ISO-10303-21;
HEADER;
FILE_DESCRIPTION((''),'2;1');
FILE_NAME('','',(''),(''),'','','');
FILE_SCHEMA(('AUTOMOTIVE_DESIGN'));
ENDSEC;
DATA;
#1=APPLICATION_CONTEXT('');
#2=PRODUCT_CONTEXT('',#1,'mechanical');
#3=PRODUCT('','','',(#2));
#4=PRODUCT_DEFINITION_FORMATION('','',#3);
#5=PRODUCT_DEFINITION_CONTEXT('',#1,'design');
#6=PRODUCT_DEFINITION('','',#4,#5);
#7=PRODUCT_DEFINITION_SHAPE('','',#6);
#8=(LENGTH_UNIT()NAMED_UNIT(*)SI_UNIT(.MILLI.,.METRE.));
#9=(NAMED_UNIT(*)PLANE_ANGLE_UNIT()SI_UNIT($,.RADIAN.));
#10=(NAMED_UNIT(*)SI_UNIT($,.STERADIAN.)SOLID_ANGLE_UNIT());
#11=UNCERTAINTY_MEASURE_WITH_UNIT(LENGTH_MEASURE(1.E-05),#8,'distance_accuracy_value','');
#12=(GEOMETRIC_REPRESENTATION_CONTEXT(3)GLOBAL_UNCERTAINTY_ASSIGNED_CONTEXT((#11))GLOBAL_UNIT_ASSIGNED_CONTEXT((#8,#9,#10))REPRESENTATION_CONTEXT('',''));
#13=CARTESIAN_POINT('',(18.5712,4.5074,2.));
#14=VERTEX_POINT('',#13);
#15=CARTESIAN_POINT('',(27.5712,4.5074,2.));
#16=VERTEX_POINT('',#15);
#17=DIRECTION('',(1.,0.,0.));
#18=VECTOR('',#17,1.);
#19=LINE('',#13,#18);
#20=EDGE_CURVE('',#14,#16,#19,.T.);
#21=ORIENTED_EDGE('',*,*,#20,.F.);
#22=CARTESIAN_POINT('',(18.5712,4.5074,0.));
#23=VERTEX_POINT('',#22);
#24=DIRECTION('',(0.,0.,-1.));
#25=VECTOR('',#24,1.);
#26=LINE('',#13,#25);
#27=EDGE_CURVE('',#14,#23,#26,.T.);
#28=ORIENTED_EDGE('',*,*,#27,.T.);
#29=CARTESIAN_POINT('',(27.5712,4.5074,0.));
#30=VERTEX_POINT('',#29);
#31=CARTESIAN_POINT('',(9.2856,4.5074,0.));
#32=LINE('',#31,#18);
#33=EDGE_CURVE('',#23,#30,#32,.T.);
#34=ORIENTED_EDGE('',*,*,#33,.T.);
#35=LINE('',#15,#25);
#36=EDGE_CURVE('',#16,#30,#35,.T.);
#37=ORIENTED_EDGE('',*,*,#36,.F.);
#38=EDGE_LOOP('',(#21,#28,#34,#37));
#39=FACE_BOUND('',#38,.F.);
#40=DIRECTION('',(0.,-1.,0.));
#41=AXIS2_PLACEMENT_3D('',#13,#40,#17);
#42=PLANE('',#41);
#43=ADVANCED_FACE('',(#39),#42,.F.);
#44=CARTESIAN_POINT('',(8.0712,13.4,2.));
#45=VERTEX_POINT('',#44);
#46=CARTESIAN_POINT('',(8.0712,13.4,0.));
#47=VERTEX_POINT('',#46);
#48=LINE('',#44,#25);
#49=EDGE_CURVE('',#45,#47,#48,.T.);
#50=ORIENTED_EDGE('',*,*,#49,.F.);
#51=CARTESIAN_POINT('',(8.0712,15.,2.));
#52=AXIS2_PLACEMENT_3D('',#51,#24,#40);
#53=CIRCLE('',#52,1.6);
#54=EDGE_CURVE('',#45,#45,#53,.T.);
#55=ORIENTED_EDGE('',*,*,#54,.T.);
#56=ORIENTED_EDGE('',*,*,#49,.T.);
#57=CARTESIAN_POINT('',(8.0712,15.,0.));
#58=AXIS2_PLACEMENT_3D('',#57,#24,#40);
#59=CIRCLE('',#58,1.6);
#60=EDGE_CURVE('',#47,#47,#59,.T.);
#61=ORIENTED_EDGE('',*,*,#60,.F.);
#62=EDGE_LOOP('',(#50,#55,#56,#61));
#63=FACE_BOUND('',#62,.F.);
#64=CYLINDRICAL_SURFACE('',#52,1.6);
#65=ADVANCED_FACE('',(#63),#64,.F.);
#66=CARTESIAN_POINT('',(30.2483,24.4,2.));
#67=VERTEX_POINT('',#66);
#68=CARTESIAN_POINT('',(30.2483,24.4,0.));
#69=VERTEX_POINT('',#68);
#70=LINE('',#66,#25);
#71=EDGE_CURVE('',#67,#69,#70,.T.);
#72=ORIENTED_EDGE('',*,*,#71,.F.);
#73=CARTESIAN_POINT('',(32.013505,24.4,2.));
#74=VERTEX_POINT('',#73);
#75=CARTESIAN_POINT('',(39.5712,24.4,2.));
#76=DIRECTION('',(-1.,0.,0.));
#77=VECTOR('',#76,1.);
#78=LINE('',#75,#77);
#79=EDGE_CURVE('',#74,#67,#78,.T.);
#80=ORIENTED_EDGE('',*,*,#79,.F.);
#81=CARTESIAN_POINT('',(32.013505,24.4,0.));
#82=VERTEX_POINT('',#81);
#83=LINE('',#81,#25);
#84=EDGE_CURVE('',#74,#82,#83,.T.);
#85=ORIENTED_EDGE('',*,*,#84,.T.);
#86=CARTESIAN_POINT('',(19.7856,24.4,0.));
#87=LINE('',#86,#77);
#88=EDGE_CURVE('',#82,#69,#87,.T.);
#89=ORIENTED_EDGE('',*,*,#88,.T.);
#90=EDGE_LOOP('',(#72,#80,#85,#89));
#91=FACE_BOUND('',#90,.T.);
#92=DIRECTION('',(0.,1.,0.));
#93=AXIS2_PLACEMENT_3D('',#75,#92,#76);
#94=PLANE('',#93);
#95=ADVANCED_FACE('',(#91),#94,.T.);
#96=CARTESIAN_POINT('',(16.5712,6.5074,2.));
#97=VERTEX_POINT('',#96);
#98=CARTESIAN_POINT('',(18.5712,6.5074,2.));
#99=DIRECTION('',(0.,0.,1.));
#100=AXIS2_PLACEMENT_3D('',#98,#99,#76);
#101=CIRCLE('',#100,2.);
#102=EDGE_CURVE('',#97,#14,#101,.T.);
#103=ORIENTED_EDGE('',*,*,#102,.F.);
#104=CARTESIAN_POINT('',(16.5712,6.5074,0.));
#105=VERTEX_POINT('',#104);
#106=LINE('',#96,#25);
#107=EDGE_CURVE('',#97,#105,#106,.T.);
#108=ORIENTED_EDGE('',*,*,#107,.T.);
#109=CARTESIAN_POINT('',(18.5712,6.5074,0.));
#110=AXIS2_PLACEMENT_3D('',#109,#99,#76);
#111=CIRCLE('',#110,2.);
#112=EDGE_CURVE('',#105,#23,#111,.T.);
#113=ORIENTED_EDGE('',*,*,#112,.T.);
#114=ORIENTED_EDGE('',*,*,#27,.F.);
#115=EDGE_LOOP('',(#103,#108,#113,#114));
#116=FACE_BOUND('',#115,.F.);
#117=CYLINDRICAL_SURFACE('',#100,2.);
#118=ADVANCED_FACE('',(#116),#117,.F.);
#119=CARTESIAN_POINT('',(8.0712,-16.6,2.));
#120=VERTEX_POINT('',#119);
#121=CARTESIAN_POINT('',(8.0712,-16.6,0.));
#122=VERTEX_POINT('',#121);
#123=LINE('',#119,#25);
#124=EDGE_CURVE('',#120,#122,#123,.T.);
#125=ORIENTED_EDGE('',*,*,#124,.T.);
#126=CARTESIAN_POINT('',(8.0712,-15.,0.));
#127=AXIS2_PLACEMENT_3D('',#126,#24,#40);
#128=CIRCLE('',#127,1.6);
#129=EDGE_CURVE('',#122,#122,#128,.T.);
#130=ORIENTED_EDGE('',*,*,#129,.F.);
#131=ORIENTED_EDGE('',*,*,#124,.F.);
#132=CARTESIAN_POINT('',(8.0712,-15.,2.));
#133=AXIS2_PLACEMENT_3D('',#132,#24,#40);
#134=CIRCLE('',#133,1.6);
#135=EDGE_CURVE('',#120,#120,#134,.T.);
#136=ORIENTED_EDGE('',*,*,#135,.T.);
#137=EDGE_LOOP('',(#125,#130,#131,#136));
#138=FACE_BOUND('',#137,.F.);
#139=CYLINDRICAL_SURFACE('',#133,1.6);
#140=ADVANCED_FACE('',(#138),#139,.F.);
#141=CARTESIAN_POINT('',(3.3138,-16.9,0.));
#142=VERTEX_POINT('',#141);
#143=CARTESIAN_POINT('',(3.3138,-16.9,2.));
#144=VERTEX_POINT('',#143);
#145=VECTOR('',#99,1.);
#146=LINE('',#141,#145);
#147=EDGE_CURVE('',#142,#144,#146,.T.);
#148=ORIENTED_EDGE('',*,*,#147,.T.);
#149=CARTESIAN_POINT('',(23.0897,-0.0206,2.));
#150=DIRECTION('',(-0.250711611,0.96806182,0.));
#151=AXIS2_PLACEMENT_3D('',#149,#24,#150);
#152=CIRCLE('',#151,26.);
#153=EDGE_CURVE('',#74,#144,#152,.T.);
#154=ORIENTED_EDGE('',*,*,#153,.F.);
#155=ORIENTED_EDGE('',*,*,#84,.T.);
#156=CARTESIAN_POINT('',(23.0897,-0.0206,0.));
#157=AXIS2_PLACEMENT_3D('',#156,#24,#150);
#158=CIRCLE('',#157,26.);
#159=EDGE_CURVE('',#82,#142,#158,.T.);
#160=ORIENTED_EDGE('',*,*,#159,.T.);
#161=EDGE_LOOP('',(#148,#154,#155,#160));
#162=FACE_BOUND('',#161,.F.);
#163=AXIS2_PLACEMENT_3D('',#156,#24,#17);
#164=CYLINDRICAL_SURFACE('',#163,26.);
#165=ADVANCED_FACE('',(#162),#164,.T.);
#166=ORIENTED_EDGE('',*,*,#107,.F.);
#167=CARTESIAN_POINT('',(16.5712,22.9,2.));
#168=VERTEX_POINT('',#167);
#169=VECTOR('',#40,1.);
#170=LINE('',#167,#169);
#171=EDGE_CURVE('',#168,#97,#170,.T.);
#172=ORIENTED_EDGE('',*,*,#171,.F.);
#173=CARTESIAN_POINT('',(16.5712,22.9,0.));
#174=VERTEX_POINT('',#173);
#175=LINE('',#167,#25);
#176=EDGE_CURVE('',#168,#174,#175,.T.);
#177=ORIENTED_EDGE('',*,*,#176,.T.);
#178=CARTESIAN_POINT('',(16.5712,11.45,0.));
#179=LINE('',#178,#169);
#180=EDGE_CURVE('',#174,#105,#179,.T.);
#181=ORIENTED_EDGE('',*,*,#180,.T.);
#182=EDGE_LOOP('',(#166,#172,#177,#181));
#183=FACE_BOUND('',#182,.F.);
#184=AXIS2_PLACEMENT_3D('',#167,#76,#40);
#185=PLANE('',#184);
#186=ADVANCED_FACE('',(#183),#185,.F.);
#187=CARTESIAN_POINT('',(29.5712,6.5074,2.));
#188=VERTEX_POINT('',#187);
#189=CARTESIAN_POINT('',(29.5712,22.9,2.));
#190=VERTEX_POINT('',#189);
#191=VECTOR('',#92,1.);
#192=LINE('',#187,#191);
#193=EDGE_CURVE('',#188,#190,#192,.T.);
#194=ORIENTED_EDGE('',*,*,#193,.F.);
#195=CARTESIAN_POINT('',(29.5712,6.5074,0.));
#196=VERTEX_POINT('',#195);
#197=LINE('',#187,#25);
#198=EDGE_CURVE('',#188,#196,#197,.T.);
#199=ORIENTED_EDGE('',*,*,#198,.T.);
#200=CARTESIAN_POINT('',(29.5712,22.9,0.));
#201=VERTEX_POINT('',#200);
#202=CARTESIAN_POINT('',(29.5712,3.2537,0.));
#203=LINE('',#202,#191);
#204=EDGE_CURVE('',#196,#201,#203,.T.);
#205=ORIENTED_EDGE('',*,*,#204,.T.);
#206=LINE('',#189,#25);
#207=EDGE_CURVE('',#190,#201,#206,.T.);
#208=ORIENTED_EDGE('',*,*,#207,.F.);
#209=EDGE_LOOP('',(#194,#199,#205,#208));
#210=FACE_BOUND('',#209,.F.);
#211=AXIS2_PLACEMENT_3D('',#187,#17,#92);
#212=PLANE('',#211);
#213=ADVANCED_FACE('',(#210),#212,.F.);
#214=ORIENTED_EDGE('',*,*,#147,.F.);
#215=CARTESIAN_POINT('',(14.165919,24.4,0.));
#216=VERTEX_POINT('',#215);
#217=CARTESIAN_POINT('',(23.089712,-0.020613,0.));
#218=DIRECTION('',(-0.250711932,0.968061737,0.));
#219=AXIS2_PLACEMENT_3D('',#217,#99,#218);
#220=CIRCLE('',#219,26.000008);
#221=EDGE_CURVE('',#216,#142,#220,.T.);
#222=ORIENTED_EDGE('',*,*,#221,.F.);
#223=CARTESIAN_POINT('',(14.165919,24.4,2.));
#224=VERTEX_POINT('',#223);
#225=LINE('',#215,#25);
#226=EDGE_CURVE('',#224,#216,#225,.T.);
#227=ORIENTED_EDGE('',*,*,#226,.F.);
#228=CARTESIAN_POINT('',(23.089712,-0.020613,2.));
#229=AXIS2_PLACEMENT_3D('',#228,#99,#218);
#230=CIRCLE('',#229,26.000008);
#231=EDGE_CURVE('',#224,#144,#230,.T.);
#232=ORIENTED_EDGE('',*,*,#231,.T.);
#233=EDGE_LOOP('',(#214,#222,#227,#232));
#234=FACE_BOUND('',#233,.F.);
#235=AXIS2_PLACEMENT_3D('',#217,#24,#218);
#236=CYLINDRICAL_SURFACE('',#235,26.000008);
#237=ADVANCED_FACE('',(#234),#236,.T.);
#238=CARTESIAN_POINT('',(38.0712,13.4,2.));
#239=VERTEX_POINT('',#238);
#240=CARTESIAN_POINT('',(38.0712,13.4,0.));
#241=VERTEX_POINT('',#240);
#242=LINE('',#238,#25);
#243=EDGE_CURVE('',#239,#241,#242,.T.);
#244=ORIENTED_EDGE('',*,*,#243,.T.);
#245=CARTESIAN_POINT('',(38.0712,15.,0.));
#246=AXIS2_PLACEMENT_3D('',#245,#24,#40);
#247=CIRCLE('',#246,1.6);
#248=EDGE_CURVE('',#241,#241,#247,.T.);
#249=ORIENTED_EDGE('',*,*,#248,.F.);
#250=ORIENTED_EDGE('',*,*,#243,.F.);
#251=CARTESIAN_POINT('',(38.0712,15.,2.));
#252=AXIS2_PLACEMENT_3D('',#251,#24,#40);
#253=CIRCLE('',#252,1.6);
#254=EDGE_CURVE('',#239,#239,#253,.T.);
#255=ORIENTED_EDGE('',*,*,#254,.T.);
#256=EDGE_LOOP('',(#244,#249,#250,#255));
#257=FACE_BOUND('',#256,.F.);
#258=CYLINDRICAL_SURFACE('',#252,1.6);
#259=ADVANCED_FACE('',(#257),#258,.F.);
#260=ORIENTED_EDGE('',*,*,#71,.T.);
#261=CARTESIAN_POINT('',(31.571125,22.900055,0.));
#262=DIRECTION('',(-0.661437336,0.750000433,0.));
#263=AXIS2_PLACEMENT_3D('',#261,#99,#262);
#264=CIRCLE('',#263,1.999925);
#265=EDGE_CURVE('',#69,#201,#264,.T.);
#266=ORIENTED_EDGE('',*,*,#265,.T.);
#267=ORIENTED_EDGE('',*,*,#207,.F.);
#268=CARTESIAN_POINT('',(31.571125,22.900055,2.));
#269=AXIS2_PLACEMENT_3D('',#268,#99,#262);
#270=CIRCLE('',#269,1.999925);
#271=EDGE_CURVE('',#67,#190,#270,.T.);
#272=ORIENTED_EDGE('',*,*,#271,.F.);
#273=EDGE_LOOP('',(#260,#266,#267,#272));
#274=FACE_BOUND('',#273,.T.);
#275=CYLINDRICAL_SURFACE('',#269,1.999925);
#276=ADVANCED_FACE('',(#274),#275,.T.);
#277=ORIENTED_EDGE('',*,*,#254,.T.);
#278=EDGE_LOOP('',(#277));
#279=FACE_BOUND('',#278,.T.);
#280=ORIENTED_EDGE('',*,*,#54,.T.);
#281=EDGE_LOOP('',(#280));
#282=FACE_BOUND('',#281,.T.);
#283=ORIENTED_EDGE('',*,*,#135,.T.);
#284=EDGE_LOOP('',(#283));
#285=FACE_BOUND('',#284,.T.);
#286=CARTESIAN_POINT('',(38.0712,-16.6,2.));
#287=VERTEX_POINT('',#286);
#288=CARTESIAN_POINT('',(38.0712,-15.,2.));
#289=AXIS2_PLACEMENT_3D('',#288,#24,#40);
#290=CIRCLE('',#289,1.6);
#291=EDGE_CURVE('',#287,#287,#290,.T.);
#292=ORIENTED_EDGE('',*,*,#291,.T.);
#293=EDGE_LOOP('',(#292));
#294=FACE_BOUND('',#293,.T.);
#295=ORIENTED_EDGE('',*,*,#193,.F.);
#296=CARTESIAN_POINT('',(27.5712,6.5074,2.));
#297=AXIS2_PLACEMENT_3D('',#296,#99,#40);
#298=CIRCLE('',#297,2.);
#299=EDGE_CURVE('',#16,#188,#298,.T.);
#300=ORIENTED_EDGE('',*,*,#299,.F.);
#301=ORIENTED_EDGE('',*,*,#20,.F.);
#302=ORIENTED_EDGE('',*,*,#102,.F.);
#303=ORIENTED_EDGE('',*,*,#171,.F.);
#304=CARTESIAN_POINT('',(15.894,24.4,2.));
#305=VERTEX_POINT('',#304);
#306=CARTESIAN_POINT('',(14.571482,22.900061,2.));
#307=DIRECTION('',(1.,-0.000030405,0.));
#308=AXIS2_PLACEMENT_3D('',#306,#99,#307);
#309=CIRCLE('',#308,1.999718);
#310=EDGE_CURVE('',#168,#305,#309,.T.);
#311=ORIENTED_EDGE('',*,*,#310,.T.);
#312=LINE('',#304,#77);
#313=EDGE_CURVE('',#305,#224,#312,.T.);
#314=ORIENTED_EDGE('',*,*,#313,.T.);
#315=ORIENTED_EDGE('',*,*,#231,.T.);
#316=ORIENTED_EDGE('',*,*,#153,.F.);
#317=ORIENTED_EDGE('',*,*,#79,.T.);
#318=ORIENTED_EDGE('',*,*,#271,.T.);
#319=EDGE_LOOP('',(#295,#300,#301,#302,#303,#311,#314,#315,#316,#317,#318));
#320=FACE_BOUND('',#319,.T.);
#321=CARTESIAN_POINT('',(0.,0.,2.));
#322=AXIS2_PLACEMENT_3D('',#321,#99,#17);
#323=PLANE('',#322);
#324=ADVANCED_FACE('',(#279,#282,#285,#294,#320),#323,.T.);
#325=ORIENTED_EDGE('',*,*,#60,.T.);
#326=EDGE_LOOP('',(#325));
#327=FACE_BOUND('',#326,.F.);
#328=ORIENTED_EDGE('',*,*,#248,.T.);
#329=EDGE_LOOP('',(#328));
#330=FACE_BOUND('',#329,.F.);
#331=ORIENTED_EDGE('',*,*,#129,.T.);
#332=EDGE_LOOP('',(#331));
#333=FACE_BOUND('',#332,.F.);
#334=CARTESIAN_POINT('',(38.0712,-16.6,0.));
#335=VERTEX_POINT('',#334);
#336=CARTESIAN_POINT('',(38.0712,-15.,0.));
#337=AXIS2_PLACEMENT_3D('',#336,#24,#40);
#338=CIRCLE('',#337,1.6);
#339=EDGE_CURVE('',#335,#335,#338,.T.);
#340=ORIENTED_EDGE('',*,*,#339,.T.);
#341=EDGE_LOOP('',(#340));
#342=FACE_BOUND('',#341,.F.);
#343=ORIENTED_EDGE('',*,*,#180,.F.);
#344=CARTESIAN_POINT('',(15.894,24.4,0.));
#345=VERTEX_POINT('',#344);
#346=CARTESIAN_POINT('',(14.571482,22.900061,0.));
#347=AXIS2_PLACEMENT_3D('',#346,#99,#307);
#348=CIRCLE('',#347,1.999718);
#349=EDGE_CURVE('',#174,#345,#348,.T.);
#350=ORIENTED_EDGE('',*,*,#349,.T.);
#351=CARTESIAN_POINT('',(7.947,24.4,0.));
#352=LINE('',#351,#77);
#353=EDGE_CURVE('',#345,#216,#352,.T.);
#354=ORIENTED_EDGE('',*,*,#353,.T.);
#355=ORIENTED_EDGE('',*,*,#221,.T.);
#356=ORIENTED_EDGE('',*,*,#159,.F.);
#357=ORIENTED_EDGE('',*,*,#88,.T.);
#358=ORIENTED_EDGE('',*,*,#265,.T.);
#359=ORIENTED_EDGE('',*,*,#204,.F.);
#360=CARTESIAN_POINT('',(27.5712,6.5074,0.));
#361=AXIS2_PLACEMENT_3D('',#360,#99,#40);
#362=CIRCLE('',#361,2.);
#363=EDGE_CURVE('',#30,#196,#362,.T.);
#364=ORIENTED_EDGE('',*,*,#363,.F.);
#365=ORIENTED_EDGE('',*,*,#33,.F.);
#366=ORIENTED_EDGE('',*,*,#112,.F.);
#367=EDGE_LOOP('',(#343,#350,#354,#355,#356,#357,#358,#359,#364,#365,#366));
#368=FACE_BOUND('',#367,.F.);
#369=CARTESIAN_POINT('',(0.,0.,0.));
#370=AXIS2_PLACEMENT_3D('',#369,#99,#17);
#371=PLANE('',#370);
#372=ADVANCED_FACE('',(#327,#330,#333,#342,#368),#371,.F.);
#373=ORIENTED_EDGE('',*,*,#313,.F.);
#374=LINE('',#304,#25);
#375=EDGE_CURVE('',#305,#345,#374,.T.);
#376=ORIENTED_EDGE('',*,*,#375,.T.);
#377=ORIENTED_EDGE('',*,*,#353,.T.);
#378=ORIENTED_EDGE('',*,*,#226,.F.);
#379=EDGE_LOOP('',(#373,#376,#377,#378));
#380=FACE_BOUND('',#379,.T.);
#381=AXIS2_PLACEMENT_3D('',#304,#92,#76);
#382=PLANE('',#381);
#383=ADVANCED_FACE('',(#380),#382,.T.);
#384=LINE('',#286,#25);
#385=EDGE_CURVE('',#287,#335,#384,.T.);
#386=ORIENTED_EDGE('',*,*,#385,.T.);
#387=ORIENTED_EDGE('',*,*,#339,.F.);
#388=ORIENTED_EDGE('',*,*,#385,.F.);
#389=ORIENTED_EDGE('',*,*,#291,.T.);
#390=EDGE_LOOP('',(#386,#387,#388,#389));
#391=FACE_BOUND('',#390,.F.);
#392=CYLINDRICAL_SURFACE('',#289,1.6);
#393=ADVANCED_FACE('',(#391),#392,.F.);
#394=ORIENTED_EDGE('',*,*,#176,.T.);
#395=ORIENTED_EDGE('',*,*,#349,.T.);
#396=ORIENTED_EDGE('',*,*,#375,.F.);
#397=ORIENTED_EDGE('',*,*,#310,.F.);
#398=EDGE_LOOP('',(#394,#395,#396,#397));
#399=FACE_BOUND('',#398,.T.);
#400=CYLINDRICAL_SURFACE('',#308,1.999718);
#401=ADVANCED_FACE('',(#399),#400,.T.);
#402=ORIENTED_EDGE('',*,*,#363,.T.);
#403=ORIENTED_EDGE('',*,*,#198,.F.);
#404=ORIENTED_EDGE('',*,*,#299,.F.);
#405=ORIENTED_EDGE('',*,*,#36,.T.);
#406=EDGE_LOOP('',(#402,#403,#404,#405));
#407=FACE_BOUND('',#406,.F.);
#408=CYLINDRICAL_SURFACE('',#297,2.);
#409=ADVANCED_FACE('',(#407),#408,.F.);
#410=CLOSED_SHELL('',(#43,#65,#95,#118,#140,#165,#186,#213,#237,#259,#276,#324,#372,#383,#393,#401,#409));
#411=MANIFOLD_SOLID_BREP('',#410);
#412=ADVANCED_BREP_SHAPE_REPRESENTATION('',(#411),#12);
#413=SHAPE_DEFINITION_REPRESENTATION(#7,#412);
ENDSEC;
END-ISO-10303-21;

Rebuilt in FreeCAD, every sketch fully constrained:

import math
import FreeCAD as App
import Part
import Sketcher
from FreeCAD import Vector

doc = App.newDocument("Part")
body = doc.addObject("PartDesign::Body", "Body")

sketch1 = doc.addObject("Sketcher::SketchObject", "Sketch")
body.addObject(sketch1)
sketch1.AttachmentSupport = (doc.XY_Plane, [""])
sketch1.MapMode = "FlatFace"
sketch1.addGeometry([
    Part.ArcOfCircle(Part.Circle(Vector(23, 0, 0), Vector(0, 0, 1), 26), math.radians(-140), math.radians(105)),
    Part.ArcOfCircle(Part.Circle(Vector(23, 0, 0), Vector(0, 0, 1), 26), math.radians(105), math.radians(220)),
], False)
sketch1.addConstraint([
    Sketcher.Constraint("Tangent", 0, 1, 1, 2),
    Sketcher.Constraint("Coincident", 1, 1, 0, 2),
    Sketcher.Constraint("Radius", 0, 26.0),
    Sketcher.Constraint("DistanceY", 0, 1, -1, 1, 16.9),
    Sketcher.Constraint("DistanceY", -1, 1, 1, 1, 25.149),
    Sketcher.Constraint("DistanceX", 0, 1, 0, 3, 19.776),
    Sketcher.Constraint("DistanceX", -1, 1, 0, 3, 23.0897),
])
pad1 = doc.addObject("PartDesign::Pad", "Pad")
body.addObject(pad1)
pad1.Profile = sketch1
pad1.Length = 2

sketch2 = doc.addObject("Sketcher::SketchObject", "Sketch001")
body.addObject(sketch2)
sketch2.AttachmentSupport = (doc.XY_Plane, [""])
sketch2.MapMode = "FlatFace"
sketch2.AttachmentOffset = App.Placement(Vector(0, 0, 2), App.Rotation())
sketch2.addGeometry([
    Part.Circle(Vector(8.1, 15, 0), Vector(0, 0, 1), 1.6),
    Part.Circle(Vector(8.1, -15, 0), Vector(0, 0, 1), 1.6),
    Part.Circle(Vector(38.1, -15, 0), Vector(0, 0, 1), 1.6),
    Part.Circle(Vector(38.1, 15, 0), Vector(0, 0, 1), 1.6),
], False)
sketch2.addConstraint([
    Sketcher.Constraint("Equal", 0, 1),
    Sketcher.Constraint("Equal", 1, 2),
    Sketcher.Constraint("Equal", 2, 3),
    Sketcher.Constraint("Symmetric", 0, 3, 1, 3, -1),
    Sketcher.Constraint("Symmetric", 2, 3, 3, 3, -1),
    Sketcher.Constraint("Horizontal", 1, 3, 2, 3),
    Sketcher.Constraint("Diameter", 0, 3.2),
    Sketcher.Constraint("DistanceY", -1, 1, 0, 3, 15.0),
    Sketcher.Constraint("DistanceX", 1, 3, 2, 3, 30.0),
    Sketcher.Constraint("DistanceX", -1, 1, 0, 3, 8.0712),
])
doc.recompute()
hole = doc.addObject("PartDesign::Hole", "Hole")
body.addObject(hole)
hole.Profile = sketch2
hole.ThreadType = "None"
hole.Diameter = 3.2
hole.DepthType = "ThroughAll"

sketch3 = doc.addObject("Sketcher::SketchObject", "Sketch002")
body.addObject(sketch3)
sketch3.AttachmentSupport = (doc.XY_Plane, [""])
sketch3.MapMode = "FlatFace"
sketch3.AttachmentOffset = App.Placement(Vector(0, 0, 2), App.Rotation())
sketch3.addGeometry([
    Part.LineSegment(Vector(6.6, 24.4, 0), Vector(15.9, 24.4, 0)),
    Part.ArcOfCircle(Part.Circle(Vector(14.6, 22.9, 0), Vector(0, 0, 1), 2), math.radians(0), math.radians(49)),
    Part.LineSegment(Vector(16.6, 22.9, 0), Vector(16.6, 6.5, 0)),
    Part.ArcOfCircle(Part.Circle(Vector(18.6, 6.5, 0), Vector(0, 0, 1), 2), math.radians(180), math.radians(270)),
    Part.LineSegment(Vector(18.6, 4.5, 0), Vector(27.6, 4.5, 0)),
    Part.ArcOfCircle(Part.Circle(Vector(27.6, 6.5, 0), Vector(0, 0, 1), 2), math.radians(-90), math.radians(0)),
    Part.LineSegment(Vector(29.6, 6.5, 0), Vector(29.6, 22.9, 0)),
    Part.ArcOfCircle(Part.Circle(Vector(31.6, 22.9, 0), Vector(0, 0, 1), 2), math.radians(131), math.radians(180)),
    Part.LineSegment(Vector(30.2, 24.4, 0), Vector(39.6, 24.4, 0)),
    Part.LineSegment(Vector(39.6, 24.4, 0), Vector(39.6, 27.7, 0)),
    Part.LineSegment(Vector(39.6, 27.7, 0), Vector(6.6, 27.7, 0)),
    Part.LineSegment(Vector(6.6, 27.7, 0), Vector(6.6, 24.4, 0)),
], False)
sketch3.addConstraint([
    Sketcher.Constraint("Coincident", 0, 2, 1, 2),
    Sketcher.Constraint("Tangent", 1, 1, 2, 1),
    Sketcher.Constraint("Tangent", 2, 2, 3, 1),
    Sketcher.Constraint("Tangent", 3, 2, 4, 1),
    Sketcher.Constraint("Tangent", 4, 2, 5, 1),
    Sketcher.Constraint("Tangent", 5, 2, 6, 1),
    Sketcher.Constraint("Tangent", 6, 2, 7, 2),
    Sketcher.Constraint("Coincident", 7, 1, 8, 1),
    Sketcher.Constraint("Coincident", 8, 2, 9, 1),
    Sketcher.Constraint("Coincident", 9, 2, 10, 1),
    Sketcher.Constraint("Coincident", 10, 2, 11, 1),
    Sketcher.Constraint("Coincident", 11, 2, 0, 1),
    Sketcher.Constraint("Horizontal", 0),
    Sketcher.Constraint("Vertical", 2),
    Sketcher.Constraint("Horizontal", 4),
    Sketcher.Constraint("Vertical", 6),
    Sketcher.Constraint("Horizontal", 8),
    Sketcher.Constraint("Vertical", 9),
    Sketcher.Constraint("Horizontal", 10),
    Sketcher.Constraint("Vertical", 11),
    Sketcher.Constraint("Equal", 1, 3),
    Sketcher.Constraint("Equal", 3, 5),
    Sketcher.Constraint("Equal", 5, 7),
    Sketcher.Constraint("Horizontal", 1, 3, 7, 3),
    Sketcher.Constraint("Horizontal", 0, 2, 7, 1),
    Sketcher.Constraint("Equal", 0, 8),
    Sketcher.Constraint("Radius", 1, 2.0),
    Sketcher.Constraint("DistanceX", 4, 1, 4, 2, 9.0),
    Sketcher.Constraint("DistanceX", 10, 2, 10, 1, 33.0),
    Sketcher.Constraint("DistanceY", -1, 1, 1, 3, 22.9),
    Sketcher.Constraint("DistanceY", -1, 1, 0, 2, 24.4),
    Sketcher.Constraint("DistanceY", 2, 2, 2, 1, 16.3926),
    Sketcher.Constraint("DistanceY", 9, 1, 9, 2, 3.2612),
    Sketcher.Constraint("DistanceX", -1, 1, 0, 2, 15.894),
])
pocket1 = doc.addObject("PartDesign::Pocket", "Pocket")
body.addObject(pocket1)
pocket1.Profile = sketch3
pocket1.Length = 10

doc.recompute()
